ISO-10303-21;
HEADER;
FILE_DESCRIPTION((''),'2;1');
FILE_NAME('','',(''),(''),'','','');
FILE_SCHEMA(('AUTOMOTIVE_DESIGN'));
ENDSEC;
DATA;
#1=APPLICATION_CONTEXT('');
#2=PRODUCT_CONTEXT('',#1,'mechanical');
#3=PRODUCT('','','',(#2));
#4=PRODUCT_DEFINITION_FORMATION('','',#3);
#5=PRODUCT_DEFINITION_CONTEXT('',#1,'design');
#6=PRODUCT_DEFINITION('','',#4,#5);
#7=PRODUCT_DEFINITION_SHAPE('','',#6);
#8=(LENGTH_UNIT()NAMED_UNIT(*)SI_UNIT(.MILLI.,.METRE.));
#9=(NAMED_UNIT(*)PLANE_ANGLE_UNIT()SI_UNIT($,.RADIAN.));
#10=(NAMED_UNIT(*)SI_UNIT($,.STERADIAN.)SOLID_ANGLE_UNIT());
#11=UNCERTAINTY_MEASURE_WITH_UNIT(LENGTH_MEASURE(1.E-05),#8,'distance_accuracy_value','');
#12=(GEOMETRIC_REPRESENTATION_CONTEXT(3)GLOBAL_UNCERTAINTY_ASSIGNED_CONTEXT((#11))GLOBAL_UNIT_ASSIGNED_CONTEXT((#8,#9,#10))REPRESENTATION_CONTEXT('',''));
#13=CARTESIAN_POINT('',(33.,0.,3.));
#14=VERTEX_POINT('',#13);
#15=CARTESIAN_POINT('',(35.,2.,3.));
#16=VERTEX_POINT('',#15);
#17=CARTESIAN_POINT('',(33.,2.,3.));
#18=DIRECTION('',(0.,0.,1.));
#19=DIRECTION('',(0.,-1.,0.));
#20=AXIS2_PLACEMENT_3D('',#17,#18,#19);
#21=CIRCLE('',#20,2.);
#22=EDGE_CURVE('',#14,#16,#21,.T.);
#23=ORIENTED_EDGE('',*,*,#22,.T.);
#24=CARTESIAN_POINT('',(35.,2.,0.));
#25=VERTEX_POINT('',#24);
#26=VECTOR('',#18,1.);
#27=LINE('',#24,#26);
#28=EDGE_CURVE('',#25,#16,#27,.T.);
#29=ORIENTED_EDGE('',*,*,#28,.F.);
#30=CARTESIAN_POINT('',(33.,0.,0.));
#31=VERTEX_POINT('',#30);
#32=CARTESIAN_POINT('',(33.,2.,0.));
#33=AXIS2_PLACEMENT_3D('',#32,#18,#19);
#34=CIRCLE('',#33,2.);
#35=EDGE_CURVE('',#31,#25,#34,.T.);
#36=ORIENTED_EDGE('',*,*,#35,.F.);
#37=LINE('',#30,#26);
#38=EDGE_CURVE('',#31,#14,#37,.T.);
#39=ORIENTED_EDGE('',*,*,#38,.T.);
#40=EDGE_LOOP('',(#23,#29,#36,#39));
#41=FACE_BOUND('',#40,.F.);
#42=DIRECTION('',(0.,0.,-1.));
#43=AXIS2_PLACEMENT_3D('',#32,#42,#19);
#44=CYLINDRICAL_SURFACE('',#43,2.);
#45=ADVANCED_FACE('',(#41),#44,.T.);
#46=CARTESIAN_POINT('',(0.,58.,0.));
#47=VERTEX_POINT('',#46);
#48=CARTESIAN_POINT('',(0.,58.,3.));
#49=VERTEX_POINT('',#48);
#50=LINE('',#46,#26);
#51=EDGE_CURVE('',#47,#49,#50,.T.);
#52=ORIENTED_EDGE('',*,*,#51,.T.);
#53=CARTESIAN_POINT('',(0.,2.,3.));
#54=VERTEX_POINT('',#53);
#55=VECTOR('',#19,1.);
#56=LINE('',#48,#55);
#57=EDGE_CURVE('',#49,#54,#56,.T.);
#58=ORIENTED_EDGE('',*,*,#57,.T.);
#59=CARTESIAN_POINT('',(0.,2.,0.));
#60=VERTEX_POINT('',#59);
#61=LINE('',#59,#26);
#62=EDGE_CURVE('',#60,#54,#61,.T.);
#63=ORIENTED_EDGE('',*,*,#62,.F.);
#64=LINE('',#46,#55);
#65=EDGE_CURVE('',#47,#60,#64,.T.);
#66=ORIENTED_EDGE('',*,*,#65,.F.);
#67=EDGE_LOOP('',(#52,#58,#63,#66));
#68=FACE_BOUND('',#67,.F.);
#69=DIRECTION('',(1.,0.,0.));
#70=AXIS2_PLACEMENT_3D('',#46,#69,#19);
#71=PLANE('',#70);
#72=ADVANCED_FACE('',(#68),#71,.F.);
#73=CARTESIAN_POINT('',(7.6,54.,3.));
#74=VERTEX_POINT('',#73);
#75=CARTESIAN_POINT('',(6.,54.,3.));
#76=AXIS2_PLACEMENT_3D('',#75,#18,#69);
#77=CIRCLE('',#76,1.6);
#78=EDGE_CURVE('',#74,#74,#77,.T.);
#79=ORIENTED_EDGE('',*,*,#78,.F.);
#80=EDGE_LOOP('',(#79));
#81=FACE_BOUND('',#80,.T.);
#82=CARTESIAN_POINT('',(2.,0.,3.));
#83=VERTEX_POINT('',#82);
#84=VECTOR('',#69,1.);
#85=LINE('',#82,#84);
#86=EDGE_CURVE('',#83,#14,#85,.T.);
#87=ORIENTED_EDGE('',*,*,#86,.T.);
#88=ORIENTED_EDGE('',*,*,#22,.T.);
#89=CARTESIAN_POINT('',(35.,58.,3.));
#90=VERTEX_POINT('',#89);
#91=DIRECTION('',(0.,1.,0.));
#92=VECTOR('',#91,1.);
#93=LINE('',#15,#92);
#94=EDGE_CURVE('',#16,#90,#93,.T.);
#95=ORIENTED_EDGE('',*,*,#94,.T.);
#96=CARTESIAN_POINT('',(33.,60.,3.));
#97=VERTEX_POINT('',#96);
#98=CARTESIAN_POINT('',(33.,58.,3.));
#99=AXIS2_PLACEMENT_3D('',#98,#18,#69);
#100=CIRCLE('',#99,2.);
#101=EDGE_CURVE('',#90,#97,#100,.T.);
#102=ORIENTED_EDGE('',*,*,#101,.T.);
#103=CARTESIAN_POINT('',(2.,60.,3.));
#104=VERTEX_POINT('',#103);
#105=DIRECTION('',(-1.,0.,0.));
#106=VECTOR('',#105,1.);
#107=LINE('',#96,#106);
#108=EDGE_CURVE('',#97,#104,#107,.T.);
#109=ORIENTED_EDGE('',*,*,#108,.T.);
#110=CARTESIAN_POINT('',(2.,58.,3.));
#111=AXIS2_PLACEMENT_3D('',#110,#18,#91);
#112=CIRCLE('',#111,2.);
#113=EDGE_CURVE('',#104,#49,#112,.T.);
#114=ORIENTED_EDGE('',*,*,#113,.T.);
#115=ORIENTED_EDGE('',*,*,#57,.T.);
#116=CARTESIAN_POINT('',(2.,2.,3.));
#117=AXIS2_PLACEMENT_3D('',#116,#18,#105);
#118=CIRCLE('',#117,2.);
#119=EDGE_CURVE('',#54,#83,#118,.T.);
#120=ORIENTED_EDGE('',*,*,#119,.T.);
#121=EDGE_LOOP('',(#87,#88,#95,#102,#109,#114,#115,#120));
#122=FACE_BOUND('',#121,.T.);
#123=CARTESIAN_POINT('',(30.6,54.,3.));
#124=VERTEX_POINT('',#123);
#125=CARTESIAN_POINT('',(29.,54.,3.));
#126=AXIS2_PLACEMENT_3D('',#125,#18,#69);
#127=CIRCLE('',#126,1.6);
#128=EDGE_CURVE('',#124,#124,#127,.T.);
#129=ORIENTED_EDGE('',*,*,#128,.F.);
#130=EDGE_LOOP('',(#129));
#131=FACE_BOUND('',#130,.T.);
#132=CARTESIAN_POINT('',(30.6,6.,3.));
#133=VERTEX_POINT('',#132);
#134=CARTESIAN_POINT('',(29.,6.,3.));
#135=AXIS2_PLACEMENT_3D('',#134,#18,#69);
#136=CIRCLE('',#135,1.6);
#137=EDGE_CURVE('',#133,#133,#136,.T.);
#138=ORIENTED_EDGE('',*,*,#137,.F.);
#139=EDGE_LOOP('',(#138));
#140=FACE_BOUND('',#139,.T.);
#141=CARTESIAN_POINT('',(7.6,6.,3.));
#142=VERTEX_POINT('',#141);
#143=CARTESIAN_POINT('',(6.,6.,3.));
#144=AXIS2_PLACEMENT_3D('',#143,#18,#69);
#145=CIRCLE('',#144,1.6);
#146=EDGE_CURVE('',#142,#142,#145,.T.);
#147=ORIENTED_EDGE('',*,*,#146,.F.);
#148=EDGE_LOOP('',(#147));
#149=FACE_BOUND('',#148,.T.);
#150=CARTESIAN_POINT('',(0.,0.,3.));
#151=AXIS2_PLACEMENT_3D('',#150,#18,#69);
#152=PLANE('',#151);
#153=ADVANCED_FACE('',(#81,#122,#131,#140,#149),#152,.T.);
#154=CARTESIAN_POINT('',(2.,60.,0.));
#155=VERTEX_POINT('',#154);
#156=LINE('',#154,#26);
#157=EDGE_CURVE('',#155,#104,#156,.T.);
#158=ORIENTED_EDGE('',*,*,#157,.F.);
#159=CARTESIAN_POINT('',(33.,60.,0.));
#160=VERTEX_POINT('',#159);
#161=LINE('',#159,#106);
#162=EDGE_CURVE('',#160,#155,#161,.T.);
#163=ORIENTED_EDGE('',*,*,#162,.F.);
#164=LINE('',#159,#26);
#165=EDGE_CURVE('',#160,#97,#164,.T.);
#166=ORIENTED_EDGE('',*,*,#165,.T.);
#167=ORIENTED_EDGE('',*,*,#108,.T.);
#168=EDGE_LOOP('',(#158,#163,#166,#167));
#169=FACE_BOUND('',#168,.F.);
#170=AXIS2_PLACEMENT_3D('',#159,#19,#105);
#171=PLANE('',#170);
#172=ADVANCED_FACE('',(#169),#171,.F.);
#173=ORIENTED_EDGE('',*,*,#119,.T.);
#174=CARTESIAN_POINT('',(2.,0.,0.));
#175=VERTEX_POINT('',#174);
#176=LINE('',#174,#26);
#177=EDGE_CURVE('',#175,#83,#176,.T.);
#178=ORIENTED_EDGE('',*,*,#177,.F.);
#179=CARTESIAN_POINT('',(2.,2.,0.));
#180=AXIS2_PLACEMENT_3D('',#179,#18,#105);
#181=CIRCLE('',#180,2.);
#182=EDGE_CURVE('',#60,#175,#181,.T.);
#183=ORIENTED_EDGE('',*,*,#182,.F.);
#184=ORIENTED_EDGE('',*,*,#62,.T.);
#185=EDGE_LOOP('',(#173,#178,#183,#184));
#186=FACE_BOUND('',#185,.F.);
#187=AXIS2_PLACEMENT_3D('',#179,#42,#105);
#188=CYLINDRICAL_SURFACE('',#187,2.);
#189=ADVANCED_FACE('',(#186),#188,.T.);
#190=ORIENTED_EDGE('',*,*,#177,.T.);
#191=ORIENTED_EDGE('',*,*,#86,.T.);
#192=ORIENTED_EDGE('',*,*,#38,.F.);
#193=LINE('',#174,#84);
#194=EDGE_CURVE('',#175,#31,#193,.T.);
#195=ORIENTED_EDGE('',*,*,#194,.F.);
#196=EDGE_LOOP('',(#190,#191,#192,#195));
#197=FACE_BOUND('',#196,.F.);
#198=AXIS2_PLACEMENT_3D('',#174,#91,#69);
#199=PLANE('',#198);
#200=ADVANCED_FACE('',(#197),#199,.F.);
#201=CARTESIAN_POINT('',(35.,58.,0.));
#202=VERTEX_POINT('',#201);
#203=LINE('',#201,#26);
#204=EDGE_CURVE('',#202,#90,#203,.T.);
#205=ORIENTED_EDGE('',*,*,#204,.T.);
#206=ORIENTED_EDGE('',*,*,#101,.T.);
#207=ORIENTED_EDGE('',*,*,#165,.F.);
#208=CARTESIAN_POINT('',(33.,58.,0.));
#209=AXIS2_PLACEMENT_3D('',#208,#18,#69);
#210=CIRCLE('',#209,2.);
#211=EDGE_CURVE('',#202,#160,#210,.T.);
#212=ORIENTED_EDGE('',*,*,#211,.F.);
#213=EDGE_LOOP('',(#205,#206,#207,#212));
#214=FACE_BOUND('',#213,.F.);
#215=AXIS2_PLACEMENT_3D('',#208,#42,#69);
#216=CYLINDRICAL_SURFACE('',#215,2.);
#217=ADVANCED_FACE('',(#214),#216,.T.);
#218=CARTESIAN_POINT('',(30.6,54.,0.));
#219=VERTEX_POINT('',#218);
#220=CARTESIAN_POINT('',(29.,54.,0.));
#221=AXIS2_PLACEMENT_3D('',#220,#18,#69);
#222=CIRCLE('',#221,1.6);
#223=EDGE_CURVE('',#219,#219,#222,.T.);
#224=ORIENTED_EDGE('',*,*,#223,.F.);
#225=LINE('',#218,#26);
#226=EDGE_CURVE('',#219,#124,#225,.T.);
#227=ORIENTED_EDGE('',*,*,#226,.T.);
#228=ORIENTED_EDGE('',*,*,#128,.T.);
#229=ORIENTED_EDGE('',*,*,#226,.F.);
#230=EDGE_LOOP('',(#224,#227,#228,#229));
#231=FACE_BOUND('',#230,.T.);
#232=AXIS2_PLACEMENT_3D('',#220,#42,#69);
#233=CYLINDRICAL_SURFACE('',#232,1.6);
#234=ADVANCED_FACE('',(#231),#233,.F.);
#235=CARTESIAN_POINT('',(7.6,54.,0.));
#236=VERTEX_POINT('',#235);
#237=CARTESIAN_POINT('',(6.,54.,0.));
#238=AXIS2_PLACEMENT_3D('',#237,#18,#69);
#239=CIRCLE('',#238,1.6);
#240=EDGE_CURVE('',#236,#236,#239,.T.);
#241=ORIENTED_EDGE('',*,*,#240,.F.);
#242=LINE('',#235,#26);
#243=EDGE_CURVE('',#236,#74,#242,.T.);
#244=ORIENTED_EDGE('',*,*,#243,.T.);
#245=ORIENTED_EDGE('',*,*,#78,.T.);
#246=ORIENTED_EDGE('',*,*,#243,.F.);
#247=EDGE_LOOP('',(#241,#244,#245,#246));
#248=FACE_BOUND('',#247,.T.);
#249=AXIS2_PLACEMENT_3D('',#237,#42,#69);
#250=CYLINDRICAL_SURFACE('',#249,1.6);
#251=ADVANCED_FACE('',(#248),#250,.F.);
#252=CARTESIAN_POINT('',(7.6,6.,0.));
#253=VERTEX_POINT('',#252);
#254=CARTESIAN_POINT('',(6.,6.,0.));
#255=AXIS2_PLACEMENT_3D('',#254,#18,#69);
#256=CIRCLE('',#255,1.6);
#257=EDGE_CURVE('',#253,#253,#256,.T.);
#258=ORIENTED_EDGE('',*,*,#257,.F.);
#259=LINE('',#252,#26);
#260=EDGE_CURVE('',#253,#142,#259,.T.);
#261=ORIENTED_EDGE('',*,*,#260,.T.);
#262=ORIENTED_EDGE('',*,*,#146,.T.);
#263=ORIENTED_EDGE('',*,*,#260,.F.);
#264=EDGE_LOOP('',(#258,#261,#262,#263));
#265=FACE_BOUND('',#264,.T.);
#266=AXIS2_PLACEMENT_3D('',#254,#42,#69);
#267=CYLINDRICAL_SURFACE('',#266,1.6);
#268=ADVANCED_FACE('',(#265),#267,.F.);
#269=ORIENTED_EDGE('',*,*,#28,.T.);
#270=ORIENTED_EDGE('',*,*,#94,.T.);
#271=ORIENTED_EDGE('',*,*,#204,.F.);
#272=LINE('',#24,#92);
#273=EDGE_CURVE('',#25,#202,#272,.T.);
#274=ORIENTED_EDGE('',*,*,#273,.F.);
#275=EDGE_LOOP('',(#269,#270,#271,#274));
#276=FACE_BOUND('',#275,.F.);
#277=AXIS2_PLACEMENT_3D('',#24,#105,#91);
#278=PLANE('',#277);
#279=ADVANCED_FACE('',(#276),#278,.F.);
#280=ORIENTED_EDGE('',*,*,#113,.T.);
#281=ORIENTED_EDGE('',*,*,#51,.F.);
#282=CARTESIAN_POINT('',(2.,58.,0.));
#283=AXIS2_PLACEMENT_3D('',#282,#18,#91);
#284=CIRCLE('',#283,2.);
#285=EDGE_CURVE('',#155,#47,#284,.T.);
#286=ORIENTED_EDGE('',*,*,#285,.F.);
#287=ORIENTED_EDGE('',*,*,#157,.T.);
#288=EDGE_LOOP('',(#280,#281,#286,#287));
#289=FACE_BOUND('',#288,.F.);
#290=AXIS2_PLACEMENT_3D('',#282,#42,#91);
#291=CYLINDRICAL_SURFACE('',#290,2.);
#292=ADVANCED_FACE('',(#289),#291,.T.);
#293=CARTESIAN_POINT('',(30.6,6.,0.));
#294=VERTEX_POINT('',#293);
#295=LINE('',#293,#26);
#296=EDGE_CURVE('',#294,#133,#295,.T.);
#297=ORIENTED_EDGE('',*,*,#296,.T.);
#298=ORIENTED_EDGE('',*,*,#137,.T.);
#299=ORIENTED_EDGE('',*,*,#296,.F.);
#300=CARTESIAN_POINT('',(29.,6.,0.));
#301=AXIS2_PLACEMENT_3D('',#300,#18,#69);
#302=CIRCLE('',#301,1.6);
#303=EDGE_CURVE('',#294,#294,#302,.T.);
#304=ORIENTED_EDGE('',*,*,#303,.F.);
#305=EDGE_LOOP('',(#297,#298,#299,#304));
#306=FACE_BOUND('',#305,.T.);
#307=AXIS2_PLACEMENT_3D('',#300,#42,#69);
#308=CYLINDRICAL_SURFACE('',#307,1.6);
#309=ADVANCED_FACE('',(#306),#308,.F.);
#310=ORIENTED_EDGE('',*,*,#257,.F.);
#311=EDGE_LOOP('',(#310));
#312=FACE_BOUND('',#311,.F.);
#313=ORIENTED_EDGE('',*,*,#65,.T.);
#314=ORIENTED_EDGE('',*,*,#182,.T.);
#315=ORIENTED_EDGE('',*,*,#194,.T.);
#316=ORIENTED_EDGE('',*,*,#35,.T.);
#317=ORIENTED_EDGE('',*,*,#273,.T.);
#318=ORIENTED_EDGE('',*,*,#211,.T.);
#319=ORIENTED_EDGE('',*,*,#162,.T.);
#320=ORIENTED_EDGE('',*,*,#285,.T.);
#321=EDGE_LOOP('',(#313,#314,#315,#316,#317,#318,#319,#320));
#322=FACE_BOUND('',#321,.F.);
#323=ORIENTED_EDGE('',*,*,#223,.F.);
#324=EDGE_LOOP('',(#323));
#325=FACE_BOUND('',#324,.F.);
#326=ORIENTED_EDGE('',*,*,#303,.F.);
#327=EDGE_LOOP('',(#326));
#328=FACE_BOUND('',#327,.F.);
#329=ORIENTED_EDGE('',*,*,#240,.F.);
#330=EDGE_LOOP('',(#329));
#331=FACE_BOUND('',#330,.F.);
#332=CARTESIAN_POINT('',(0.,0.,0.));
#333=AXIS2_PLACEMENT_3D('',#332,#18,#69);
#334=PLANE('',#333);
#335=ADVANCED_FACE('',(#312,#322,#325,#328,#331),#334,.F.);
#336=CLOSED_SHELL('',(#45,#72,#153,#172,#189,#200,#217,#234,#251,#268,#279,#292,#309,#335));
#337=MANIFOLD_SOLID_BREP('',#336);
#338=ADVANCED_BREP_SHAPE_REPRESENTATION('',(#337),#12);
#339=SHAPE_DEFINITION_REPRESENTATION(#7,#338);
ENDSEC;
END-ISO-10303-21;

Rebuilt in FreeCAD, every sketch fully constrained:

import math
import FreeCAD as App
import Part
import Sketcher

V = App.Vector

doc = App.newDocument("Part")
params = doc.addObject("Spreadsheet::Sheet", "Params")
for row, (alias, value) in enumerate([
    ("sketch1_radius", "2 mm"),
    ("sketch1_diameter", "3.2 mm"),
    ("pad1_length", "3 mm"),
], start=1):
    params.set(f"A{row}", alias)
    params.set(f"B{row}", "=" + value)
    params.setAlias(f"B{row}", alias)

body = doc.addObject("PartDesign::Body", "Body")

# Sketch on XY plane
sketch1 = doc.addObject("Sketcher::SketchObject", "Sketch")
body.addObject(sketch1)
sketch1.AttachmentSupport = (doc.XY_Plane, [""])
sketch1.MapMode = "FlatFace"
sketch1.addGeometry([
    Part.ArcOfCircle(Part.Circle(V(2, 2, 0), V(0, 0, 1), 2), math.radians(180), math.radians(270)),  # 0
    Part.LineSegment(V(2, 0, 0), V(33, 0, 0)),  # 1
    Part.ArcOfCircle(Part.Circle(V(33, 2, 0), V(0, 0, 1), 2), math.radians(-90), math.radians(0)),  # 2
    Part.LineSegment(V(35, 2, 0), V(35, 58, 0)),  # 3
    Part.ArcOfCircle(Part.Circle(V(33, 58, 0), V(0, 0, 1), 2), math.radians(0), math.radians(90)),  # 4
    Part.LineSegment(V(33, 60, 0), V(2, 60, 0)),  # 5
    Part.ArcOfCircle(Part.Circle(V(2, 58, 0), V(0, 0, 1), 2), math.radians(90), math.radians(180)),  # 6
    Part.LineSegment(V(0, 58, 0), V(0, 2, 0)),  # 7
    Part.Circle(V(6, 6, 0), V(0, 0, 1), 1.6),  # 8
    Part.Circle(V(29, 6, 0), V(0, 0, 1), 1.6),  # 9
    Part.Circle(V(6, 54, 0), V(0, 0, 1), 1.6),  # 10
    Part.Circle(V(29, 54, 0), V(0, 0, 1), 1.6),  # 11
], False)
sketch1.addConstraint([
    Sketcher.Constraint("Tangent", 0, 2, 1, 1),
    Sketcher.Constraint("Tangent", 1, 2, 2, 1),
    Sketcher.Constraint("Tangent", 2, 2, 3, 1),
    Sketcher.Constraint("Tangent", 3, 2, 4, 1),
    Sketcher.Constraint("Tangent", 4, 2, 5, 1),
    Sketcher.Constraint("Tangent", 5, 2, 6, 1),
    Sketcher.Constraint("Tangent", 6, 2, 7, 1),
    Sketcher.Constraint("Tangent", 7, 2, 0, 1),
    Sketcher.Constraint("Horizontal", 1),
    Sketcher.Constraint("Vertical", 3),
    Sketcher.Constraint("Horizontal", 5),
    Sketcher.Constraint("Vertical", 7),
    Sketcher.Constraint("Equal", 0, 2),
    Sketcher.Constraint("Equal", 2, 4),
    Sketcher.Constraint("Equal", 4, 6),
    Sketcher.Constraint("Equal", 8, 9),
    Sketcher.Constraint("Equal", 9, 10),
    Sketcher.Constraint("Equal", 10, 11),
    Sketcher.Constraint("PointOnObject", 0, 2, -1),
    Sketcher.Constraint("PointOnObject", 6, 2, -2),
    Sketcher.Constraint("Horizontal", 8, 3, 9, 3),
    Sketcher.Constraint("Horizontal", 10, 3, 11, 3),
    Sketcher.Constraint("Vertical", 8, 3, 10, 3),
    Sketcher.Constraint("Vertical", 9, 3, 11, 3),
    Sketcher.Constraint("Radius", 0, 2.0),
    Sketcher.Constraint("Diameter", 8, 3.2),
    Sketcher.Constraint("DistanceX", -1, 1, 8, 3, 6.0),
    Sketcher.Constraint("DistanceY", -1, 1, 8, 3, 6.0),
    Sketcher.Constraint("DistanceX", -1, 1, 2, 2, 35.0),
    Sketcher.Constraint("DistanceY", -1, 1, 4, 2, 60.0),
    Sketcher.Constraint("DistanceX", 9, 3, 2, 2, 6.0),
    Sketcher.Constraint("DistanceY", 11, 3, 4, 2, 6.0),
])
sketch1.setExpression("Constraints[24]", "Params.sketch1_radius")
sketch1.setExpression("Constraints[25]", "Params.sketch1_diameter")
pad1 = doc.addObject("PartDesign::Pad", "Pad")
body.addObject(pad1)
pad1.Profile = sketch1
pad1.setExpression("Length", "Params.pad1_length")

doc.recompute()
